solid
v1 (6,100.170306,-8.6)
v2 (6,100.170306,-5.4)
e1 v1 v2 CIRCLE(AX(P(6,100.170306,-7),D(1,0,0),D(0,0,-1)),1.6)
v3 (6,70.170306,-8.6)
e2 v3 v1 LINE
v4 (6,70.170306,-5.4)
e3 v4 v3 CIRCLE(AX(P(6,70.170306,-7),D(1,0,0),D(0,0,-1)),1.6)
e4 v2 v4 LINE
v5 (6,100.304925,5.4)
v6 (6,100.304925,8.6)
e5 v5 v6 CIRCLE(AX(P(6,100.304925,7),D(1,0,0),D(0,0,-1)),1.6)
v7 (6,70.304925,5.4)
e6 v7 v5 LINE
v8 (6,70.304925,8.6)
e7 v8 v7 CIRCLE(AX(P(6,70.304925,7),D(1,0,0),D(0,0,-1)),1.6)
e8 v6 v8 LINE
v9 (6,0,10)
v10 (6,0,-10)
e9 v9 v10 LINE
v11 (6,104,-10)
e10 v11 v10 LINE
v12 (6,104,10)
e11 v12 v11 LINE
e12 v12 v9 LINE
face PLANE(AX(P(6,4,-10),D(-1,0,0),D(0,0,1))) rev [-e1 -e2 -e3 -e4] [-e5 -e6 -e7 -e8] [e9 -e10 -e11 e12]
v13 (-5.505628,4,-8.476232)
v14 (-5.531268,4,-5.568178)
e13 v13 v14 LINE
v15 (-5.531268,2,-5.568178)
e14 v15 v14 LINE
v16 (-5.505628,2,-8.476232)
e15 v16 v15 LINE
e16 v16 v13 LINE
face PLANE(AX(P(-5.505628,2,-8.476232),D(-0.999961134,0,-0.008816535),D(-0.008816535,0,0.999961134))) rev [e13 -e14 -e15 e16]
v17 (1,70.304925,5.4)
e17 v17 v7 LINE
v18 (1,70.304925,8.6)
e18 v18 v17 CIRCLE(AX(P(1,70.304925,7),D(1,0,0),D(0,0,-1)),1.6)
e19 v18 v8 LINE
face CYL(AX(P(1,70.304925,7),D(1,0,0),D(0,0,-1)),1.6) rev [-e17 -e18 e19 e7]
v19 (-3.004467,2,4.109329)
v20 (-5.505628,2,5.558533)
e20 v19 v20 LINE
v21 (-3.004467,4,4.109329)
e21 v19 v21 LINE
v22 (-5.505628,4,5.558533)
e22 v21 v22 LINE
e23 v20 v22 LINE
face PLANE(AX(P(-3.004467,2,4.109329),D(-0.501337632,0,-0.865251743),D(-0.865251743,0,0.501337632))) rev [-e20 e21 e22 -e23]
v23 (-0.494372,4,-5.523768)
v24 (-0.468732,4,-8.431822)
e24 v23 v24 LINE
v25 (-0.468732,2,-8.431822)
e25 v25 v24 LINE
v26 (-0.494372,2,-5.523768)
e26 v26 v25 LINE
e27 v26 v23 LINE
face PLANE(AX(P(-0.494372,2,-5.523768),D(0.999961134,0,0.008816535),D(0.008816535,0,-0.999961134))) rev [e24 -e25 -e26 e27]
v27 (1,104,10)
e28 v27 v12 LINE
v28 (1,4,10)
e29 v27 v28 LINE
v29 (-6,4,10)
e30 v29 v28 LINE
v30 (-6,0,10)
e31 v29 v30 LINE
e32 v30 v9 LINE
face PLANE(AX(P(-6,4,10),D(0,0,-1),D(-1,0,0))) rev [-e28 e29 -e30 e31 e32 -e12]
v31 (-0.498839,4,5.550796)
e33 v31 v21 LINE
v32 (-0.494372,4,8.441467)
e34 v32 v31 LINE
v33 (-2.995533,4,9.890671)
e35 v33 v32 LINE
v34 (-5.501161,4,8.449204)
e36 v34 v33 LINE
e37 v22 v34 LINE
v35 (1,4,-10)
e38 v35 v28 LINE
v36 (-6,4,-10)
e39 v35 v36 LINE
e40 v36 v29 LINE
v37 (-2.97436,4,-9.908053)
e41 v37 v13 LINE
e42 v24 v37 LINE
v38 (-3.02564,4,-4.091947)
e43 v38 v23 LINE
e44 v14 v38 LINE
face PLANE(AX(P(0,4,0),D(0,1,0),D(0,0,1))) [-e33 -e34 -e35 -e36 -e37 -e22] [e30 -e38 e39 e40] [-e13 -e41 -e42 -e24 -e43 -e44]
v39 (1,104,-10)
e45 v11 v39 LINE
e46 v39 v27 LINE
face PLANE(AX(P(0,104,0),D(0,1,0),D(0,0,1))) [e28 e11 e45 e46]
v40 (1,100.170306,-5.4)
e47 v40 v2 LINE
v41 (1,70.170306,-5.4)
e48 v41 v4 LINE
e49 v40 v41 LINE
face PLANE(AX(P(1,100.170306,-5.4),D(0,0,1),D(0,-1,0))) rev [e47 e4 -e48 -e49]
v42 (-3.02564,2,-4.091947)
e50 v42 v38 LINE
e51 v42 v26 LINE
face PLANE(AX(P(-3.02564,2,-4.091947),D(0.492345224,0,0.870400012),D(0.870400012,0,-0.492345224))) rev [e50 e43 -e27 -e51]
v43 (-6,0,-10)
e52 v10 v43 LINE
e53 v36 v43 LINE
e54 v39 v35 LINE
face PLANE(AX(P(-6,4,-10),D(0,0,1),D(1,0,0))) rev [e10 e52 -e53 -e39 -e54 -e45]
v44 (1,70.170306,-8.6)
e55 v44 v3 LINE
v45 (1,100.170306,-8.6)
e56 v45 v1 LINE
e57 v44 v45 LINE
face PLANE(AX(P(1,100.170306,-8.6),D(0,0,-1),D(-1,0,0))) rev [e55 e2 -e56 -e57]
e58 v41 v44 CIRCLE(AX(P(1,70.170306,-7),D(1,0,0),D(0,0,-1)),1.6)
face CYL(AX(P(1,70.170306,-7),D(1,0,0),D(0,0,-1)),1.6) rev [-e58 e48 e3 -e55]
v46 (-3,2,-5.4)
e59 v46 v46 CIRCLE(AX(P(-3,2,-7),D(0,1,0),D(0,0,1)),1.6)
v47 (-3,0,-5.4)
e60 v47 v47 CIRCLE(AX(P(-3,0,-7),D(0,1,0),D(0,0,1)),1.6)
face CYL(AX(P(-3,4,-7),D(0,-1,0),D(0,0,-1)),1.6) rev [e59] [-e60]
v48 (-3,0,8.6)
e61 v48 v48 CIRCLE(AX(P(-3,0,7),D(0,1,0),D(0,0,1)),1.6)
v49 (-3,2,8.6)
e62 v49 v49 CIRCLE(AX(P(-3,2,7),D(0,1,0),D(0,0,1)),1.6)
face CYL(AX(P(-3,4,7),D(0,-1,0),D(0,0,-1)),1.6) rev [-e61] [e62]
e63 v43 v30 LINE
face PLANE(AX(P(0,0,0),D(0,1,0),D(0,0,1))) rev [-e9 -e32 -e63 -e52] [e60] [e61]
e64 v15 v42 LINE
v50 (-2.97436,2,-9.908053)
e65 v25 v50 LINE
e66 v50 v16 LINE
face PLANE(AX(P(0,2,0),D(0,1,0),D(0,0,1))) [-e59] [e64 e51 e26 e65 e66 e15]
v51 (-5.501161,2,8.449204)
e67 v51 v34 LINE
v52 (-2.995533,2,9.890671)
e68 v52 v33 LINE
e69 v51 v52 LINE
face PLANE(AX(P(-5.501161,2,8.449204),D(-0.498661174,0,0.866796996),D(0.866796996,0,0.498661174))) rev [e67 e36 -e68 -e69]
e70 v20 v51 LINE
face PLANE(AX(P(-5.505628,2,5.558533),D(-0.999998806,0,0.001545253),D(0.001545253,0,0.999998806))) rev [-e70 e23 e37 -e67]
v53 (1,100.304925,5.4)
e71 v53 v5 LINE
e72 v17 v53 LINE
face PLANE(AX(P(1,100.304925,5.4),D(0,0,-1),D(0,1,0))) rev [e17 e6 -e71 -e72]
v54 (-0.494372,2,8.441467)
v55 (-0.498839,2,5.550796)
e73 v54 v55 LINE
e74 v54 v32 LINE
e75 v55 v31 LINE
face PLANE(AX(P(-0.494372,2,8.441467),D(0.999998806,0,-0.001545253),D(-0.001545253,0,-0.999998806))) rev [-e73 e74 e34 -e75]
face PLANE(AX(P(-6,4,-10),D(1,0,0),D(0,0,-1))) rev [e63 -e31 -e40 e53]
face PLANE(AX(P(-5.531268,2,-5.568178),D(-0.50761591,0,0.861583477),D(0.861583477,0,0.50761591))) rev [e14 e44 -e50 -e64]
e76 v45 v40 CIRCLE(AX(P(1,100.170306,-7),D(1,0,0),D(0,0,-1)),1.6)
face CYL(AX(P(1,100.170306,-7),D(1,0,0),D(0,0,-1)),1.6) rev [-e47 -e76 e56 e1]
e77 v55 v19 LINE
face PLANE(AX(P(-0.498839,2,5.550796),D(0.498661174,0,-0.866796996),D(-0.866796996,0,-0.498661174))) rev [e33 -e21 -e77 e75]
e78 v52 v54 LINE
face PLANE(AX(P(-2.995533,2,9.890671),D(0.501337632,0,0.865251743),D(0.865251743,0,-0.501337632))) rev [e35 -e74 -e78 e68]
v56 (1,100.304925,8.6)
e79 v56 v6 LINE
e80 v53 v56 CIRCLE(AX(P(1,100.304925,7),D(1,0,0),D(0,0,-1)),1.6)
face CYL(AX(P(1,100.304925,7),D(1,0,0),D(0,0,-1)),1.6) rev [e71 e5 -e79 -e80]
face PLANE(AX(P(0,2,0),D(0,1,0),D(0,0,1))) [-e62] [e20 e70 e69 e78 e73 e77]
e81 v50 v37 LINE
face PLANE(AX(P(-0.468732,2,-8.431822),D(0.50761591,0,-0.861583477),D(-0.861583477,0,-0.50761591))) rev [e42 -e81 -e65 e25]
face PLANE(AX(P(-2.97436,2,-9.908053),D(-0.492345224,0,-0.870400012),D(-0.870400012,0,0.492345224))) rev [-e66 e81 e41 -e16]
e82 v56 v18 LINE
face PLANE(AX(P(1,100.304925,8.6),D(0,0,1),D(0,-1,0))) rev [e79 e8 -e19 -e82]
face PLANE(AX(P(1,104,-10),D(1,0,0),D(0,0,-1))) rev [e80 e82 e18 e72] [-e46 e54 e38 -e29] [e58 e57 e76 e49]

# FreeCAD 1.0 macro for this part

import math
import FreeCAD as App
import Part
import Sketcher

V = App.Vector

doc = App.newDocument("Part")
body = doc.addObject("PartDesign::Body", "Body")

sketch1 = body.newObject("Sketcher::SketchObject", "Sketch")
sketch1.AttachmentSupport = (doc.getObject("XZ_Plane"), [""])
sketch1.MapMode = "FlatFace"
sketch1.addGeometry([
    Part.LineSegment(V(-6, -10, 0), V(-6, 10, 0)),
    Part.LineSegment(V(-6, 10, 0), V(6, 10, 0)),
    Part.LineSegment(V(6, 10, 0), V(6, -10, 0)),
    Part.LineSegment(V(6, -10, 0), V(-6, -10, 0)),
    Part.Circle(V(-3, 7, 0), V(0, 0, 1), 1.6),
    Part.Circle(V(-3, -7, 0), V(0, 0, 1), 1.6),
], False)
sketch1.addConstraint([
    Sketcher.Constraint("Coincident", 0, 2, 1, 1),
    Sketcher.Constraint("Coincident", 1, 2, 2, 1),
    Sketcher.Constraint("Coincident", 2, 2, 3, 1),
    Sketcher.Constraint("Coincident", 3, 2, 0, 1),
    Sketcher.Constraint("Vertical", 0),
    Sketcher.Constraint("Horizontal", 1),
    Sketcher.Constraint("Vertical", 2),
    Sketcher.Constraint("Horizontal", 3),
    Sketcher.Constraint("Equal", 4, 5),
    Sketcher.Constraint("Symmetric", 0, 2, 2, 2, -1, 1),
    Sketcher.Constraint("Symmetric", 4, 3, 5, 3, -1),
    Sketcher.Constraint("Diameter", 4, 3.2),
    Sketcher.Constraint("DistanceX", 1, 1, 1, 2, 12.0),
    Sketcher.Constraint("DistanceY", 0, 1, 0, 2, 20.0),
    Sketcher.Constraint("DistanceX", 4, 3, -1, 1, 3.0),
    Sketcher.Constraint("DistanceY", -1, 1, 4, 3, 7.0),
])
pad1 = body.newObject("PartDesign::Pad", "Pad")
pad1.Profile = sketch1
pad1.Length = 4
pad1.Reversed = True

sketch2 = body.newObject("Sketcher::SketchObject", "Sketch001")
sketch2.AttachmentSupport = (doc.getObject("XZ_Plane"), [""])
sketch2.MapMode = "FlatFace"
sketch2.AttachmentOffset = App.Placement(V(0, 0, -4), App.Rotation())
sketch2.addGeometry([
    Part.LineSegment(V(1, -10, 0), V(1, 10, 0)),
    Part.LineSegment(V(1, 10, 0), V(6, 10, 0)),
    Part.LineSegment(V(6, 10, 0), V(6, -10, 0)),
    Part.LineSegment(V(6, -10, 0), V(1, -10, 0)),
], False)
sketch2.addConstraint([
    Sketcher.Constraint("Coincident", 0, 2, 1, 1),
    Sketcher.Constraint("Coincident", 1, 2, 2, 1),
    Sketcher.Constraint("Coincident", 2, 2, 3, 1),
    Sketcher.Constraint("Coincident", 3, 2, 0, 1),
    Sketcher.Constraint("Vertical", 0),
    Sketcher.Constraint("Horizontal", 1),
    Sketcher.Constraint("Vertical", 2),
    Sketcher.Constraint("Horizontal", 3),
    Sketcher.Constraint("DistanceX", 1, 1, 1, 2, 5.0),
    Sketcher.Constraint("DistanceY", 0, 1, 0, 2, 20.0),
    Sketcher.Constraint("DistanceX", -1, 1, 0, 2, 1.0),
    Sketcher.Constraint("DistanceY", -1, 1, 0, 2, 10.0),
])
pad2 = body.newObject("PartDesign::Pad", "Pad001")
pad2.Profile = sketch2
pad2.Length = 100
pad2.Reversed = True

sketch3 = body.newObject("Sketcher::SketchObject", "Sketch002")
sketch3.AttachmentSupport = (doc.getObject("XZ_Plane"), [""])
sketch3.MapMode = "FlatFace"
sketch3.AttachmentOffset = App.Placement(V(0, 0, -4), App.Rotation())
sketch3.addGeometry([
    Part.LineSegment(V(-0.5, -5.5, 0), V(-0.5, -8.4, 0)),
    Part.LineSegment(V(-0.5, -8.4, 0), V(-3, -9.9, 0)),
    Part.LineSegment(V(-3, -9.9, 0), V(-5.5, -8.5, 0)),
    Part.LineSegment(V(-5.5, -8.5, 0), V(-5.5, -5.6, 0)),
    Part.LineSegment(V(-5.5, -5.6, 0), V(-3, -4.1, 0)),
    Part.LineSegment(V(-3, -4.1, 0), V(-0.5, -5.5, 0)),
    Part.LineSegment(V(-0.5, 8.4, 0), V(-0.5, 5.6, 0)),
    Part.LineSegment(V(-0.5, 5.6, 0), V(-3, 4.1, 0)),
    Part.LineSegment(V(-3, 4.1, 0), V(-5.5, 5.6, 0)),
    Part.LineSegment(V(-5.5, 5.6, 0), V(-5.5, 8.4, 0)),
    Part.LineSegment(V(-5.5, 8.4, 0), V(-3, 9.9, 0)),
    Part.LineSegment(V(-3, 9.9, 0), V(-0.5, 8.4, 0)),
], False)
sketch3.addConstraint([
    Sketcher.Constraint("Coincident", 0, 2, 1, 1),
    Sketcher.Constraint("Coincident", 1, 2, 2, 1),
    Sketcher.Constraint("Coincident", 2, 2, 3, 1),
    Sketcher.Constraint("Coincident", 3, 2, 4, 1),
    Sketcher.Constraint("Coincident", 4, 2, 5, 1),
    Sketcher.Constraint("Coincident", 5, 2, 0, 1),
    Sketcher.Constraint("Coincident", 6, 2, 7, 1),
    Sketcher.Constraint("Coincident", 7, 2, 8, 1),
    Sketcher.Constraint("Coincident", 8, 2, 9, 1),
    Sketcher.Constraint("Coincident", 9, 2, 10, 1),
    Sketcher.Constraint("Coincident", 10, 2, 11, 1),
    Sketcher.Constraint("Coincident", 11, 2, 6, 1),
    Sketcher.Constraint("Parallel", 0, 3),
    Sketcher.Constraint("Parallel", 1, 4),
    Sketcher.Constraint("Parallel", 2, 5),
    Sketcher.Constraint("Parallel", 6, 9),
    Sketcher.Constraint("Parallel", 7, 10),
    Sketcher.Constraint("Parallel", 8, 11),
    Sketcher.Constraint("Vertical", 2, 2, 8, 2),
    Sketcher.Constraint("Vertical", 5, 2, 11, 2),
    Sketcher.Constraint("Equal", 0, 1),
    Sketcher.Constraint("Equal", 1, 2),
    Sketcher.Constraint("Equal", 2, 3),
    Sketcher.Constraint("Equal", 6, 7),
    Sketcher.Constraint("Equal", 7, 8),
    Sketcher.Constraint("Equal", 8, 9),
    Sketcher.Constraint("DistanceX", 4, 2, 6, 2, 2.526801),
    Sketcher.Constraint("DistanceX", 3, 2, 7, 2, 2.526801),
    Sketcher.Constraint("DistanceY", 5, 2, 8, 2, 11.082301),
    Sketcher.Constraint("DistanceX", 0, 2, -1, 1, 0.468732),
    Sketcher.Constraint("DistanceY", 0, 2, -1, 1, 8.431822),
    Sketcher.Constraint("DistanceX", 1, 2, -1, 1, 2.97436),
    Sketcher.Constraint("DistanceX", 2, 2, -1, 1, 5.505628),
    Sketcher.Constraint("DistanceY", 2, 2, -1, 1, 8.476232),
    Sketcher.Constraint("DistanceX", 3, 2, -1, 1, 5.531268),
    Sketcher.Constraint("DistanceY", -1, 1, 7, 2, 4.109329),
])
pocket1 = body.newObject("PartDesign::Pocket", "Pocket")
pocket1.Profile = sketch3
pocket1.Length = 2
pocket1.Reversed = True

sketch4 = body.newObject("Sketcher::SketchObject", "Sketch003")
sketch4.AttachmentSupport = (doc.getObject("YZ_Plane"), [""])
sketch4.MapMode = "FlatFace"
sketch4.AttachmentOffset = App.Placement(V(0, 0, 6), App.Rotation())
sketch4.addGeometry([
    Part.LineSegment(V(70.3, 5.4, 0), V(100.3, 5.4, 0)),
    Part.ArcOfCircle(Part.Circle(V(100.3, 7, 0), V(0, 0, 1), 1.6), math.radians(-90), math.radians(90)),
    Part.LineSegment(V(100.3, 8.6, 0), V(70.3, 8.6, 0)),
    Part.ArcOfCircle(Part.Circle(V(70.3, 7, 0), V(0, 0, 1), 1.6), math.radians(90), math.radians(270)),
    Part.LineSegment(V(70.2, -8.6, 0), V(100.2, -8.6, 0)),
    Part.ArcOfCircle(Part.Circle(V(100.2, -7, 0), V(0, 0, 1), 1.6), math.radians(-90), math.radians(90)),
    Part.LineSegment(V(100.2, -5.4, 0), V(70.2, -5.4, 0)),
    Part.ArcOfCircle(Part.Circle(V(70.2, -7, 0), V(0, 0, 1), 1.6), math.radians(90), math.radians(270)),
], False)
sketch4.addConstraint([
    Sketcher.Constraint("Tangent", 0, 2, 1, 1),
    Sketcher.Constraint("Tangent", 1, 2, 2, 1),
    Sketcher.Constraint("Tangent", 2, 2, 3, 1),
    Sketcher.Constraint("Tangent", 3, 2, 0, 1),
    Sketcher.Constraint("Tangent", 4, 2, 5, 1),
    Sketcher.Constraint("Tangent", 5, 2, 6, 1),
    Sketcher.Constraint("Tangent", 6, 2, 7, 1),
    Sketcher.Constraint("Tangent", 7, 2, 4, 1),
    Sketcher.Constraint("Horizontal", 0),
    Sketcher.Constraint("Horizontal", 2),
    Sketcher.Constraint("Horizontal", 4),
    Sketcher.Constraint("Horizontal", 6),
    Sketcher.Constraint("Equal", 3, 5),
    Sketcher.Constraint("Equal", 2, 4),
    Sketcher.Constraint("Radius", 1, 1.6),
    Sketcher.Constraint("DistanceX", 0, 1, 0, 2, 30.0),
    Sketcher.Constraint("DistanceY", -1, 1, 1, 3, 7.0),
    Sketcher.Constraint("DistanceY", 5, 3, -1, 1, 7.0),
    Sketcher.Constraint("DistanceX", 5, 3, 1, 3, 0.134619),
    Sketcher.Constraint("DistanceX", -1, 1, 1, 3, 100.304925),
])
pocket2 = body.newObject("PartDesign::Pocket", "Pocket001")
pocket2.Profile = sketch4
pocket2.Length = 5

doc.recompute()
